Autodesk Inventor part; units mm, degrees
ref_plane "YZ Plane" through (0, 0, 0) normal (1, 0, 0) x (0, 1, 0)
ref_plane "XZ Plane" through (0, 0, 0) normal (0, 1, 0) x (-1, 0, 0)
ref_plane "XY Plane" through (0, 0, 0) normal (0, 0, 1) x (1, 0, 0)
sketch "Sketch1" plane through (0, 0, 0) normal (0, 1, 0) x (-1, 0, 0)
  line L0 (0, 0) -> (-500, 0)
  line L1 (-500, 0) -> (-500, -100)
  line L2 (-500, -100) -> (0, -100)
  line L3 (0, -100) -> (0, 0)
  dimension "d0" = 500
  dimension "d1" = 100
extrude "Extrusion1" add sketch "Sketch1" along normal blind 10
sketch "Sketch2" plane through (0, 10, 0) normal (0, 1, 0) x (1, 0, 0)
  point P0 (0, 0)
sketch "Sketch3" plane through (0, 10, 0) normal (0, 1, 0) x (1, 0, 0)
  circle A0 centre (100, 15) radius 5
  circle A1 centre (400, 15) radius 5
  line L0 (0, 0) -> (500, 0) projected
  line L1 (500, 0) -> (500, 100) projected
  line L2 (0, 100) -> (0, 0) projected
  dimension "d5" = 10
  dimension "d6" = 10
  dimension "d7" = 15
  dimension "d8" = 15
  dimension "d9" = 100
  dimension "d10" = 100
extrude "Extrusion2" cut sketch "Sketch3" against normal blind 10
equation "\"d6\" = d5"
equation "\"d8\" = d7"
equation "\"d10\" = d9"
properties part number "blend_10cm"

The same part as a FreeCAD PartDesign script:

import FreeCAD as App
import Part
import Sketcher

V = App.Vector
Q = App.Units.Quantity


def add_polygon(sketch, points):
    """Adds a closed chain of lines whose ends are joined by coincident constraints."""
    first, n = sketch.GeometryCount, len(points)
    for a, b in zip(points, points[1:] + points[:1]):
        sketch.addGeometry(Part.LineSegment(App.Vector(*a, 0), App.Vector(*b, 0)), False)
    for i in range(n):
        sketch.addConstraint(Sketcher.Constraint("Coincident", first + i, 2, first + (i + 1) % n, 1))

doc = App.newDocument("Part")
body = doc.addObject("PartDesign::Body", "Body")

sketch1 = doc.addObject("Sketcher::SketchObject", "Sketch")
body.addObject(sketch1)
sketch1.AttachmentSupport = (doc.XZ_Plane, [""])
sketch1.MapMode = "FlatFace"
add_polygon(sketch1, [(0, -100), (0, 0), (500, 0), (500, -100)])
sketch1.addConstraint([
    Sketcher.Constraint("Vertical", 0),
    Sketcher.Constraint("Horizontal", 1),
    Sketcher.Constraint("Vertical", 2),
    Sketcher.Constraint("Horizontal", 3),
    Sketcher.Constraint("Coincident", 0, 2, -1, 1),
    Sketcher.Constraint("DistanceX", 1, 1, 1, 2, Q("500 mm")),
    Sketcher.Constraint("DistanceY", 0, 1, 0, 2, Q("100 mm")),
])
pad1 = doc.addObject("PartDesign::Pad", "Pad")
body.addObject(pad1)
pad1.Profile = sketch1
pad1.Length = 10
pad1.Reversed = True

sketch2 = doc.addObject("Sketcher::SketchObject", "Sketch001")
body.addObject(sketch2)
sketch2.AttachmentSupport = (doc.XZ_Plane, [""])
sketch2.MapMode = "FlatFace"
sketch2.AttachmentOffset = App.Placement(V(0, 0, -10), App.Rotation())
sketch2.addGeometry([
    Part.Circle(V(100, -15, 0), V(0, 0, 1), 5),
    Part.Circle(V(400, -15, 0), V(0, 0, 1), 5),
], False)
sketch2.addConstraint([
    Sketcher.Constraint("Equal", 0, 1),
    Sketcher.Constraint("Horizontal", 0, 3, 1, 3),
    Sketcher.Constraint("Diameter", 0, Q("10 mm")),
    Sketcher.Constraint("DistanceX", -1, 1, 0, 3, Q("100 mm")),
    Sketcher.Constraint("DistanceY", 0, 3, -1, 1, Q("15 mm")),
    Sketcher.Constraint("DistanceX", -1, 1, 1, 3, Q("400 mm")),
])
pocket1 = doc.addObject("PartDesign::Pocket", "Pocket")
body.addObject(pocket1)
pocket1.Profile = sketch2
pocket1.Length = 10
pocket1.Reversed = True

doc.recompute()
